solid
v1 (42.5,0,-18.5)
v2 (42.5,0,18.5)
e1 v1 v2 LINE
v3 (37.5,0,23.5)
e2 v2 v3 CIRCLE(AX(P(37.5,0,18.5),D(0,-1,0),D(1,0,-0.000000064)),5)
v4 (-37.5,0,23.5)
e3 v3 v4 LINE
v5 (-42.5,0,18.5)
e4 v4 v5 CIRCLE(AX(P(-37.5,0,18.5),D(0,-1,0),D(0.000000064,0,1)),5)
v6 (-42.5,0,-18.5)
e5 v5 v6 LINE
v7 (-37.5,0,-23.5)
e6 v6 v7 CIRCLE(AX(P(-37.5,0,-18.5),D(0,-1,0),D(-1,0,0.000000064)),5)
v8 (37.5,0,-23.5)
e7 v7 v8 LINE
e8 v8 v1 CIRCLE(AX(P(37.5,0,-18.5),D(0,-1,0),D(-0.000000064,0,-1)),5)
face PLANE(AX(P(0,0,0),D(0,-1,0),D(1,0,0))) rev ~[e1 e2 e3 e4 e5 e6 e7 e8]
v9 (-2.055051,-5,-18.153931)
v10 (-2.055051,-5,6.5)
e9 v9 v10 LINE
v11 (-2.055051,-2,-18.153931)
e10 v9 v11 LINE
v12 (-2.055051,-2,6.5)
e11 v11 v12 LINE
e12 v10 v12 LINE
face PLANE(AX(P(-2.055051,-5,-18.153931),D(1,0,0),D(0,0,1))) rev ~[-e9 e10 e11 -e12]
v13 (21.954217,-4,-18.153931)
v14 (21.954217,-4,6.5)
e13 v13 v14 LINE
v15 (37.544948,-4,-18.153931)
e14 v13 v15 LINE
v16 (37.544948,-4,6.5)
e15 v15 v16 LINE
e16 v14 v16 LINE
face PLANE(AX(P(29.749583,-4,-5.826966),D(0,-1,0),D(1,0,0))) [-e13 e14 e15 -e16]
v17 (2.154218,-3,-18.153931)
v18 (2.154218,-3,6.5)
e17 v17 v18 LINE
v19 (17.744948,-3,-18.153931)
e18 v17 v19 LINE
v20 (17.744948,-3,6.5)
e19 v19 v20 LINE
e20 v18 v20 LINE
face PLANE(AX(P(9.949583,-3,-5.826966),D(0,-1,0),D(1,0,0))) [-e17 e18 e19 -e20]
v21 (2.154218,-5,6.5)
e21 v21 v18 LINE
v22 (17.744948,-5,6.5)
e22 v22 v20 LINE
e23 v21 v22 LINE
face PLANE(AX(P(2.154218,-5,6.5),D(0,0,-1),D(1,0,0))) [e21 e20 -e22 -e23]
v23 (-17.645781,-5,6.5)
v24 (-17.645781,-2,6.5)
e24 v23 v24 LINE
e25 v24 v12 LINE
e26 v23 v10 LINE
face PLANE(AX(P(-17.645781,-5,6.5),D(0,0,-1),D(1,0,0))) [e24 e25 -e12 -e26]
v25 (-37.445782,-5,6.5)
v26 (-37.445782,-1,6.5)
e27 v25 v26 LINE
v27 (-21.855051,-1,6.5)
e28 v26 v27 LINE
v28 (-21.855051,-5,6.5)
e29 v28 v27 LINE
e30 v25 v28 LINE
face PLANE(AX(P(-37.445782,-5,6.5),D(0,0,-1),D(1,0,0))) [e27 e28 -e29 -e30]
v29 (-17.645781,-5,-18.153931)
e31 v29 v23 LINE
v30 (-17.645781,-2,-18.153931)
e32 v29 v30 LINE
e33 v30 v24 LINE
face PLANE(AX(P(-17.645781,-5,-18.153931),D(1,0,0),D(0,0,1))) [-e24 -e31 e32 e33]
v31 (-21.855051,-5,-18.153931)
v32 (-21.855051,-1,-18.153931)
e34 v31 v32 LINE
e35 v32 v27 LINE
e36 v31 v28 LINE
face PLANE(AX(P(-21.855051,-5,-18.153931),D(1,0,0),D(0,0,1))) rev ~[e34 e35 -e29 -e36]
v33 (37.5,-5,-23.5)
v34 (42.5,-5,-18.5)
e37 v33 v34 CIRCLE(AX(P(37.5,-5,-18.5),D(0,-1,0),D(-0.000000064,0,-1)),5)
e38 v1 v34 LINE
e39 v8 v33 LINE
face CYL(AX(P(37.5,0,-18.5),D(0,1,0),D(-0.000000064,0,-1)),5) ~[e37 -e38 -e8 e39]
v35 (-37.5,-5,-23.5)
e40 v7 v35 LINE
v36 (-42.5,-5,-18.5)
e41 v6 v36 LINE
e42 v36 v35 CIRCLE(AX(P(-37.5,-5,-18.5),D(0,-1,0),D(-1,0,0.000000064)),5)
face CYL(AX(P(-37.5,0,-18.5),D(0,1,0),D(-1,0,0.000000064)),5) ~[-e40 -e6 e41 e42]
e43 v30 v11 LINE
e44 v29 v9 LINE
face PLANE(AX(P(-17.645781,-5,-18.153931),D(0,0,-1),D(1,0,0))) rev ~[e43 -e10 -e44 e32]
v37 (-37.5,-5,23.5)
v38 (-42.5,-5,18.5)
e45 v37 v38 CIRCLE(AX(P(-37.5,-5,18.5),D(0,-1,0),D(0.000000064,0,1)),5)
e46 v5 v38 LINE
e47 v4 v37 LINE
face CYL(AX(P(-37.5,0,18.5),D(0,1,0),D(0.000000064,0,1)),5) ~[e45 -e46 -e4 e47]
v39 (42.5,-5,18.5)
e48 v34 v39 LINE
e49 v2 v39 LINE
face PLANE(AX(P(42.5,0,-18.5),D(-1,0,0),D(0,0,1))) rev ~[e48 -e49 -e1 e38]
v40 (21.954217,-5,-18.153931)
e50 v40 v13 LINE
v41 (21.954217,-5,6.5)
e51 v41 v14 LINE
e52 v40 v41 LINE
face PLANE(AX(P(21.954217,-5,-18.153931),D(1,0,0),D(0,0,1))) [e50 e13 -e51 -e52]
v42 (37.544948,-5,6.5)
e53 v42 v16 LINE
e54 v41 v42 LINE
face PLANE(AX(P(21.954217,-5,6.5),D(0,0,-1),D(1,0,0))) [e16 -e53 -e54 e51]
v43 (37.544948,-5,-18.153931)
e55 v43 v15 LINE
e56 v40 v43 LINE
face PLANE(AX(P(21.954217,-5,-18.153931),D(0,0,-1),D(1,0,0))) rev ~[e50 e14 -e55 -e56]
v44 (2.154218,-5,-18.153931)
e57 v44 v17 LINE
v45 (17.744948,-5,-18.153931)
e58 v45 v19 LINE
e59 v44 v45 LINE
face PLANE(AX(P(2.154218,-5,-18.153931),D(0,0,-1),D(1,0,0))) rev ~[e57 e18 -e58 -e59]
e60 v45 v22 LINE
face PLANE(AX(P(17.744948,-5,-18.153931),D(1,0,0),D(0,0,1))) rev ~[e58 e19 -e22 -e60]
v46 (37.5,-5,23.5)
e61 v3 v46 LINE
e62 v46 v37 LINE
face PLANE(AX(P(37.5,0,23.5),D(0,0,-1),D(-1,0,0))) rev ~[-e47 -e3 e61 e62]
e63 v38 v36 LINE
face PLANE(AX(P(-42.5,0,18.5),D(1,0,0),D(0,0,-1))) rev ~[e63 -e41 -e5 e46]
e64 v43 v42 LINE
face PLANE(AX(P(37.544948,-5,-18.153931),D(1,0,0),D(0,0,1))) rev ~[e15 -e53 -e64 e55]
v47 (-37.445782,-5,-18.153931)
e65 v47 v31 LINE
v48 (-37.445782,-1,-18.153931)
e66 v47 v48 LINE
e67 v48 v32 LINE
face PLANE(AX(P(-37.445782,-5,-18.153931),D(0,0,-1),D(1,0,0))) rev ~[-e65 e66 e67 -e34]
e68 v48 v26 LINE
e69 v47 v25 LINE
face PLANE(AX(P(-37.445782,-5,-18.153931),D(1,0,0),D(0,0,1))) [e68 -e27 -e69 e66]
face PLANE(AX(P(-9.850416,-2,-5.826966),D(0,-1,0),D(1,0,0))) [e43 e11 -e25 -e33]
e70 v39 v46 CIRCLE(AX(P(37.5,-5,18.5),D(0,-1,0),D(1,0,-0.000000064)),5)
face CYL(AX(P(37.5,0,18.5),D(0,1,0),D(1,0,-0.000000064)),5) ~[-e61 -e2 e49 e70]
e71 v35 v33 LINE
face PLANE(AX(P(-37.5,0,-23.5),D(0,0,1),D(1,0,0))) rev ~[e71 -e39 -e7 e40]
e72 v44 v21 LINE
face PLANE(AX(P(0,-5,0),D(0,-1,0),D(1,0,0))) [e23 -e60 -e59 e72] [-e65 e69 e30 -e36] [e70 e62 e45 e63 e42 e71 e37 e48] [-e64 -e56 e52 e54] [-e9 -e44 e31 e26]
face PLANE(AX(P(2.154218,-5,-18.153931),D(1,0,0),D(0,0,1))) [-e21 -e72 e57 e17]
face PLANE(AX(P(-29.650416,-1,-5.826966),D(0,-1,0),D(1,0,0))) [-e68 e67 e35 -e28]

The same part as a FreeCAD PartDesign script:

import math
import FreeCAD as App
import Part
import Sketcher
Q = App.Units.Quantity


def add_polygon(sketch, points):
    """Adds a closed chain of lines whose ends are joined by coincident constraints."""
    first, n = sketch.GeometryCount, len(points)
    for a, b in zip(points, points[1:] + points[:1]):
        sketch.addGeometry(Part.LineSegment(App.Vector(*a, 0), App.Vector(*b, 0)), False)
    for i in range(n):
        sketch.addConstraint(Sketcher.Constraint("Coincident", first + i, 2, first + (i + 1) % n, 1))

doc = App.newDocument("Part")
body = doc.addObject("PartDesign::Body", "Body")

sketch1 = doc.addObject("Sketcher::SketchObject", "Sketch")
body.addObject(sketch1)
sketch1.AttachmentSupport = (doc.XZ_Plane, [""])
sketch1.MapMode = "FlatFace"
sketch1.addGeometry([
    Part.LineSegment(App.Vector(-37.5, -23.5, 0), App.Vector(37.5, -23.5, 0)),
    Part.ArcOfCircle(Part.Circle(App.Vector(37.5, -18.5, 0), App.Vector(0, 0, 1), 5), math.radians(-90), math.radians(0)),
    Part.LineSegment(App.Vector(42.5, -18.5, 0), App.Vector(42.5, 18.5, 0)),
    Part.ArcOfCircle(Part.Circle(App.Vector(37.5, 18.5, 0), App.Vector(0, 0, 1), 5), math.radians(0), math.radians(90)),
    Part.LineSegment(App.Vector(37.5, 23.5, 0), App.Vector(-37.5, 23.5, 0)),
    Part.ArcOfCircle(Part.Circle(App.Vector(-37.5, 18.5, 0), App.Vector(0, 0, 1), 5), math.radians(90), math.radians(180)),
    Part.LineSegment(App.Vector(-42.5, 18.5, 0), App.Vector(-42.5, -18.5, 0)),
    Part.ArcOfCircle(Part.Circle(App.Vector(-37.5, -18.5, 0), App.Vector(0, 0, 1), 5), math.radians(180), math.radians(270)),
], False)
sketch1.addConstraint([
    Sketcher.Constraint("Tangent", 0, 2, 1, 1),
    Sketcher.Constraint("Tangent", 1, 2, 2, 1),
    Sketcher.Constraint("Tangent", 2, 2, 3, 1),
    Sketcher.Constraint("Tangent", 3, 2, 4, 1),
    Sketcher.Constraint("Tangent", 4, 2, 5, 1),
    Sketcher.Constraint("Tangent", 5, 2, 6, 1),
    Sketcher.Constraint("Tangent", 6, 2, 7, 1),
    Sketcher.Constraint("Tangent", 7, 2, 0, 1),
    Sketcher.Constraint("Horizontal", 0),
    Sketcher.Constraint("Vertical", 2),
    Sketcher.Constraint("Horizontal", 4),
    Sketcher.Constraint("Vertical", 6),
    Sketcher.Constraint("Equal", 1, 3),
    Sketcher.Constraint("Equal", 3, 5),
    Sketcher.Constraint("Equal", 5, 7),
    Sketcher.Constraint("Symmetric", 1, 3, 5, 3, -1, 1),
    Sketcher.Constraint("Radius", 1, Q("5 mm")),
    Sketcher.Constraint("DistanceX", 0, 1, 0, 2, Q("75 mm")),
    Sketcher.Constraint("DistanceY", 2, 1, 2, 2, Q("37 mm")),
])
pad1 = doc.addObject("PartDesign::Pad", "Pad")
body.addObject(pad1)
pad1.Profile = sketch1
pad1.Length = 5

sketch2 = doc.addObject("Sketcher::SketchObject", "Sketch001")
body.addObject(sketch2)
sketch2.AttachmentSupport = (doc.XZ_Plane, [""])
sketch2.MapMode = "FlatFace"
sketch2.AttachmentOffset = App.Placement(App.Vector(0, 0, 5), App.Rotation())
add_polygon(sketch2, [(-37, 6), (-37, -18), (-22, -18), (-22, 6)])
sketch2.addConstraint([
    Sketcher.Constraint("Vertical", 0),
    Sketcher.Constraint("Horizontal", 1),
    Sketcher.Constraint("Vertical", 2),
    Sketcher.Constraint("Horizontal", 3),
    Sketcher.Constraint("DistanceY", -1, 1, 2, 2, Q("6.5 mm")),
    Sketcher.Constraint("DistanceX", 1, 1, 1, 2, Q("15.590731 mm")),
    Sketcher.Constraint("DistanceY", 0, 2, 0, 1, Q("24.653931 mm")),
    Sketcher.Constraint("DistanceX", 0, 2, -1, 1, Q("37.445782 mm")),
])
pocket1 = doc.addObject("PartDesign::Pocket", "Pocket")
body.addObject(pocket1)
pocket1.Profile = sketch2
pocket1.Length = 4

sketch3 = doc.addObject("Sketcher::SketchObject", "Sketch002")
body.addObject(sketch3)
sketch3.AttachmentSupport = (doc.XZ_Plane, [""])
sketch3.MapMode = "FlatFace"
sketch3.AttachmentOffset = App.Placement(App.Vector(0, 0, 5), App.Rotation())
add_polygon(sketch3, [(-18, 6), (-18, -18), (-2, -18), (-2, 6)])
sketch3.addConstraint([
    Sketcher.Constraint("Vertical", 0),
    Sketcher.Constraint("Horizontal", 1),
    Sketcher.Constraint("Vertical", 2),
    Sketcher.Constraint("Horizontal", 3),
    Sketcher.Constraint("DistanceY", -1, 1, 2, 2, Q("6.5 mm")),
    Sketcher.Constraint("DistanceX", 1, 1, 1, 2, Q("15.590731 mm")),
    Sketcher.Constraint("DistanceY", 0, 2, 0, 1, Q("24.653931 mm")),
    Sketcher.Constraint("DistanceX", 0, 2, -1, 1, Q("17.645781 mm")),
])
pocket2 = doc.addObject("PartDesign::Pocket", "Pocket001")
body.addObject(pocket2)
pocket2.Profile = sketch3
pocket2.Length = 3

sketch4 = doc.addObject("Sketcher::SketchObject", "Sketch003")
body.addObject(sketch4)
sketch4.AttachmentSupport = (doc.XZ_Plane, [""])
sketch4.MapMode = "FlatFace"
sketch4.AttachmentOffset = App.Placement(App.Vector(0, 0, 5), App.Rotation())
add_polygon(sketch4, [(2, 6), (2, -18), (18, -18), (18, 6)])
sketch4.addConstraint([
    Sketcher.Constraint("Vertical", 0),
    Sketcher.Constraint("Horizontal", 1),
    Sketcher.Constraint("Vertical", 2),
    Sketcher.Constraint("Horizontal", 3),
    Sketcher.Constraint("DistanceY", -1, 1, 2, 2, Q("6.5 mm")),
    Sketcher.Constraint("DistanceX", 1, 1, 1, 2, Q("15.590731 mm")),
    Sketcher.Constraint("DistanceY", 0, 2, 0, 1, Q("24.653931 mm")),
    Sketcher.Constraint("DistanceX", -1, 1, 1, 2, Q("17.744948 mm")),
])
pocket3 = doc.addObject("PartDesign::Pocket", "Pocket002")
body.addObject(pocket3)
pocket3.Profile = sketch4
pocket3.Length = 2

sketch5 = doc.addObject("Sketcher::SketchObject", "Sketch004")
body.addObject(sketch5)
sketch5.AttachmentSupport = (doc.XZ_Plane, [""])
sketch5.MapMode = "FlatFace"
sketch5.AttachmentOffset = App.Placement(App.Vector(0, 0, 5), App.Rotation())
add_polygon(sketch5, [(22, 6), (22, -18), (38, -18), (38, 6)])
sketch5.addConstraint([
    Sketcher.Constraint("Vertical", 0),
    Sketcher.Constraint("Horizontal", 1),
    Sketcher.Constraint("Vertical", 2),
    Sketcher.Constraint("Horizontal", 3),
    Sketcher.Constraint("DistanceY", -1, 1, 2, 2, Q("6.5 mm")),
    Sketcher.Constraint("DistanceX", 1, 1, 1, 2, Q("15.590731 mm")),
    Sketcher.Constraint("DistanceY", 0, 2, 0, 1, Q("24.653931 mm")),
    Sketcher.Constraint("DistanceX", -1, 1, 1, 2, Q("37.544948 mm")),
])
pocket4 = doc.addObject("PartDesign::Pocket", "Pocket003")
body.addObject(pocket4)
pocket4.Profile = sketch5
pocket4.Length = 1

doc.recompute()
